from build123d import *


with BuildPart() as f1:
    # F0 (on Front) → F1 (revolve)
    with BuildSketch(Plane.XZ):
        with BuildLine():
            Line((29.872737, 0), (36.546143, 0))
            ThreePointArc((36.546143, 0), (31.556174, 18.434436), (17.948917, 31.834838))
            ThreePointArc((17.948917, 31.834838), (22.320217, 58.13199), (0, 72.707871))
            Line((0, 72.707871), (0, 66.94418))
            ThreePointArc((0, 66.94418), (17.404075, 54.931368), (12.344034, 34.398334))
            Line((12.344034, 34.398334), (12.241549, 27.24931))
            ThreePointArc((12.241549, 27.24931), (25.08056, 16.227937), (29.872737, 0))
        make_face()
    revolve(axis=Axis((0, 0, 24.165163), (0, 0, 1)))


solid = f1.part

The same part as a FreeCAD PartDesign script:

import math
import FreeCAD as App
import Part
import Sketcher

V = App.Vector

doc = App.newDocument("Part")
body = doc.addObject("PartDesign::Body", "Body")

# Sketch on XZ plane
sketch1 = body.newObject("Sketcher::SketchObject", "Sketch")
sketch1.AttachmentSupport = (doc.getObject("XZ_Plane"), [""])
sketch1.MapMode = "FlatFace"
sketch1.addGeometry([
    Part.LineSegment(V(29.872737, 0, 0), V(36.546143, 0, 0)),  # 0
    Part.ArcOfCircle(Part.Circle(V(0, -0.000001, 0), V(0, 0, 1), 36.546143), math.radians(0.000001), math.radians(60.585102)),  # 1
    Part.ArcOfCircle(Part.Circle(V(0, 48.330325, 0), V(0, 0, 1), 24.377546), math.radians(-42.583757), math.radians(89.999999)),  # 2
    Part.LineSegment(V(0, 72.707871, 0), V(0, 66.94418, 0)),  # 3
    Part.ArcOfCircle(Part.Circle(V(0.000001, 48.330326, 0), V(0, 0, 1), 18.613854), math.radians(-48.458392), math.radians(90.000002)),  # 4
    Part.LineSegment(V(12.344034, 34.398334, 0), V(12.241549, 27.24931, 0)),  # 5
    Part.ArcOfCircle(Part.Circle(V(0.000001, 0.000001, 0), V(0, 0, 1), 29.872736), math.radians(-0.000001), math.radians(65.808358)),  # 6
], False)
sketch1.addConstraint([
    Sketcher.Constraint("Coincident", 0, 2, 1, 1),
    Sketcher.Constraint("Coincident", 1, 2, 2, 1),
    Sketcher.Constraint("Coincident", 2, 2, 3, 1),
    Sketcher.Constraint("Coincident", 3, 2, 4, 2),
    Sketcher.Constraint("Coincident", 4, 1, 5, 1),
    Sketcher.Constraint("Coincident", 5, 2, 6, 2),
    Sketcher.Constraint("Coincident", 6, 1, 0, 1),
    Sketcher.Constraint("Horizontal", 0),
    Sketcher.Constraint("Vertical", 3),
    Sketcher.Constraint("Coincident", 1, 3, -1, 1),
    Sketcher.Constraint("Coincident", 6, 3, -1, 1),
    Sketcher.Constraint("Coincident", 4, 3, 2, 3),
    Sketcher.Constraint("PointOnObject", 2, 3, -2),
    Sketcher.Constraint("PointOnObject", 0, 2, -1),
    Sketcher.Constraint("PointOnObject", 2, 2, -2),
    Sketcher.Constraint("Radius", 1, 36.546143),
    Sketcher.Constraint("Radius", 2, 24.377546),
    Sketcher.Constraint("Radius", 4, 18.613854),
    Sketcher.Constraint("Radius", 6, 29.872736),
    Sketcher.Constraint("Distance", 5, 7.149759),
    Sketcher.Constraint("DistanceY", -1, 1, 2, 2, 72.707871),
    Sketcher.Constraint("DistanceX", -1, 1, 5, 2, 12.241549),
])
revolution = body.newObject("PartDesign::Revolution", "Revolution")
revolution.Profile = sketch1
revolution.ReferenceAxis = (sketch1, ["V_Axis"])
revolution.Angle = 360

doc.recompute()
